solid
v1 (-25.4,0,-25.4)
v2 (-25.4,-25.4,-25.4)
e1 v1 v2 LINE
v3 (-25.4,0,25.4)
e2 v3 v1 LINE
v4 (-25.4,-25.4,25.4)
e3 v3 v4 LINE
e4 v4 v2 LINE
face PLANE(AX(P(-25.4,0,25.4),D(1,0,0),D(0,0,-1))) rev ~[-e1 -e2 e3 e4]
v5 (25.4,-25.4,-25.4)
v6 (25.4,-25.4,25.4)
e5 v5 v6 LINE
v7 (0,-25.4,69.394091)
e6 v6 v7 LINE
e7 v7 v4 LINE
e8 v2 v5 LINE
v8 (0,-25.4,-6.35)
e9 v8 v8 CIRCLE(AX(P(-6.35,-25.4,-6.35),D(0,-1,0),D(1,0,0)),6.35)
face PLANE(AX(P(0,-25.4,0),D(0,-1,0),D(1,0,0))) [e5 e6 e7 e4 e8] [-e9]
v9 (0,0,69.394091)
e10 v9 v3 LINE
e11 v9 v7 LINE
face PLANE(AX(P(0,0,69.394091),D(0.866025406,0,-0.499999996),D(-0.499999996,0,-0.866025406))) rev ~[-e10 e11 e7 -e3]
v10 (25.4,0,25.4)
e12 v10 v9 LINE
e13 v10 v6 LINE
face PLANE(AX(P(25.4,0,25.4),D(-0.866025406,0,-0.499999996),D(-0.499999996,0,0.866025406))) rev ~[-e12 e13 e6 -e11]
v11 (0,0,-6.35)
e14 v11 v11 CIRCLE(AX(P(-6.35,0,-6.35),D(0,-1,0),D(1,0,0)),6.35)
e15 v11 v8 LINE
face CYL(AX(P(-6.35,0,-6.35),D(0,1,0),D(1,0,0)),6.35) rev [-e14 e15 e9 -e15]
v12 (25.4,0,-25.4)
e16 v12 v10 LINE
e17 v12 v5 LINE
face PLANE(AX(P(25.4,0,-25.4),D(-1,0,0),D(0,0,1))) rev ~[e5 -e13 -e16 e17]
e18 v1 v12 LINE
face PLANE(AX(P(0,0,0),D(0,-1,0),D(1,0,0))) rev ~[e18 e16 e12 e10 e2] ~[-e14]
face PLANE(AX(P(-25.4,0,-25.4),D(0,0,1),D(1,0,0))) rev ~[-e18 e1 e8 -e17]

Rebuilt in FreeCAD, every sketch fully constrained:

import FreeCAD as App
import Part
import Sketcher
from FreeCAD import Vector
Q = App.Units.Quantity

doc = App.newDocument("Part")
body = doc.addObject("PartDesign::Body", "Body")

sketch1 = doc.addObject("Sketcher::SketchObject", "Sketch")
body.addObject(sketch1)
sketch1.AttachmentSupport = (doc.XZ_Plane, [""])
sketch1.MapMode = "FlatFace"
sketch1.addGeometry(Part.LineSegment(Vector(25.4, -25.4, 0), Vector(25.4, 25.4, 0)), False)
sketch1.addGeometry(Part.LineSegment(Vector(25.4, 25.4, 0), Vector(0, 69.394091, 0)), False)
sketch1.addGeometry(Part.LineSegment(Vector(0, 69.394091, 0), Vector(-25.4, 25.4, 0)), False)
sketch1.addGeometry(Part.LineSegment(Vector(-25.4, 25.4, 0), Vector(-25.4, -25.4, 0)), False)
sketch1.addGeometry(Part.LineSegment(Vector(-25.4, -25.4, 0), Vector(25.4, -25.4, 0)), False)
sketch1.addGeometry(Part.Circle(Vector(-6.35, -6.35, 0), Vector(0, 0, 1), 6.35), False)
sketch1.addConstraint(Sketcher.Constraint("Coincident", 0, 2, 1, 1))
sketch1.addConstraint(Sketcher.Constraint("Coincident", 1, 2, 2, 1))
sketch1.addConstraint(Sketcher.Constraint("Coincident", 2, 2, 3, 1))
sketch1.addConstraint(Sketcher.Constraint("Coincident", 3, 2, 4, 1))
sketch1.addConstraint(Sketcher.Constraint("Coincident", 4, 2, 0, 1))
sketch1.addConstraint(Sketcher.Constraint("Vertical", 0))
sketch1.addConstraint(Sketcher.Constraint("Vertical", 3))
sketch1.addConstraint(Sketcher.Constraint("Horizontal", 4))
sketch1.addConstraint(Sketcher.Constraint("Symmetric", 0, 2, 3, 2, -1, 1))
sketch1.addConstraint(Sketcher.Constraint("PointOnObject", 1, 2, -2))
sketch1.addConstraint(Sketcher.Constraint("Horizontal", 0, 2, 2, 2))
sketch1.addConstraint(Sketcher.Constraint("Equal", 4, 0))
sketch1.addConstraint(Sketcher.Constraint("Diameter", 5, Q("0.5 in")))
sketch1.addConstraint(Sketcher.Constraint("DistanceX", 4, 1, 4, 2, Q("2 in")))
sketch1.addConstraint(Sketcher.Constraint("Distance", 1, Q("2 in")))
sketch1.addConstraint(Sketcher.Constraint("DistanceX", 5, 3, -1, 1, Q("0.25 in")))
sketch1.addConstraint(Sketcher.Constraint("DistanceY", 5, 3, -1, 1, Q("0.25 in")))
pad1 = doc.addObject("PartDesign::Pad", "Pad")
body.addObject(pad1)
pad1.Profile = sketch1
pad1.Length = Q("1 in")

doc.recompute()
